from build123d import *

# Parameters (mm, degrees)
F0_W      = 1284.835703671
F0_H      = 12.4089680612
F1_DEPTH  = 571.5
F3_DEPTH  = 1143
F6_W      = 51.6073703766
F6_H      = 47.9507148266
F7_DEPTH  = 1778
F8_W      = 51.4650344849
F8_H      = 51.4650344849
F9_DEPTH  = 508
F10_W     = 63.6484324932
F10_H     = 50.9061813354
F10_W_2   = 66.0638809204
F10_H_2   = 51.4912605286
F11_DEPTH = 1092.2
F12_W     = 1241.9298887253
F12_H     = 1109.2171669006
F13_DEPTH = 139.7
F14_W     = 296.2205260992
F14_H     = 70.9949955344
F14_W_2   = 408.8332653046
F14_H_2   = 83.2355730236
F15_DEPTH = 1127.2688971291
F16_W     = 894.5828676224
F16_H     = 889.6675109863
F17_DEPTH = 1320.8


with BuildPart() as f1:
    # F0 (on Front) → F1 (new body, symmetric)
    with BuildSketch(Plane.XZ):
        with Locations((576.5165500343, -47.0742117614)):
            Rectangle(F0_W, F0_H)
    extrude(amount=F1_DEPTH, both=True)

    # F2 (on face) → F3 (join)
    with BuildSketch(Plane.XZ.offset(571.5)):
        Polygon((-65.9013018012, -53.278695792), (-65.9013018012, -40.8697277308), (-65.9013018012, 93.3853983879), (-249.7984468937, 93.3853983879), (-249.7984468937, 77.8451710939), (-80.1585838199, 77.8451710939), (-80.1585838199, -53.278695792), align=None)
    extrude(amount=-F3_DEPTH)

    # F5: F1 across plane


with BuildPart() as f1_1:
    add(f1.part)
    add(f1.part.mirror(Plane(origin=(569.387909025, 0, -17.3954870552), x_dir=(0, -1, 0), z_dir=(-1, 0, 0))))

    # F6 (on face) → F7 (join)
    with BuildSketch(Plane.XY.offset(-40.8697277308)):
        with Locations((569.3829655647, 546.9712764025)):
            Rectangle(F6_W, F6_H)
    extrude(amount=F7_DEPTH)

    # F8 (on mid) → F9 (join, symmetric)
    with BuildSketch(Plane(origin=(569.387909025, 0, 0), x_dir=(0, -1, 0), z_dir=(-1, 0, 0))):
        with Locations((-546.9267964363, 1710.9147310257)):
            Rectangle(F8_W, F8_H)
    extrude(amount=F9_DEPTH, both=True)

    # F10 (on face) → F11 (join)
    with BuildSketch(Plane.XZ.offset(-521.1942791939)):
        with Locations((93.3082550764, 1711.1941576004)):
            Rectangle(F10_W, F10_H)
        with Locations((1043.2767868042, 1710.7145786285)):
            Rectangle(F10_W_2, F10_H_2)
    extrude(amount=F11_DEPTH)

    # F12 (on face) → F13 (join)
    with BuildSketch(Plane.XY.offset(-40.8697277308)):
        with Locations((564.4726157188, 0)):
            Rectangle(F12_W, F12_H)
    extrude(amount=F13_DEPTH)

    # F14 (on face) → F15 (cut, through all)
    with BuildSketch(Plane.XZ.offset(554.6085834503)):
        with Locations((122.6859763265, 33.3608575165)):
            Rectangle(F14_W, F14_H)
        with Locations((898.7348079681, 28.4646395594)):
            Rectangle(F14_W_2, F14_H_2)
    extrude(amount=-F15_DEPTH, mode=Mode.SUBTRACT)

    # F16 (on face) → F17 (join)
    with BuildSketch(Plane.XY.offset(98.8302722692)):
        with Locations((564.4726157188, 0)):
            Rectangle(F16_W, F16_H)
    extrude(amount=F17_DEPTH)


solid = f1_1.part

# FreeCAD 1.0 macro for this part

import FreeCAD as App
import Part
import Sketcher
from FreeCAD import Vector
Q = App.Units.Quantity

doc = App.newDocument("Part")
body = doc.addObject("PartDesign::Body", "Body")

sketch1 = body.newObject("Sketcher::SketchObject", "Sketch")
sketch1.AttachmentSupport = (doc.getObject("XZ_Plane"), [""])
sketch1.MapMode = "FlatFace"
sketch1.addGeometry([
    Part.LineSegment(Vector(-66, -41, 0), Vector(-66, -53, 0)),
    Part.LineSegment(Vector(-66, -53, 0), Vector(1219, -53, 0)),
    Part.LineSegment(Vector(1219, -53, 0), Vector(1219, -41, 0)),
    Part.LineSegment(Vector(1219, -41, 0), Vector(-66, -41, 0)),
], False)
sketch1.addConstraint([
    Sketcher.Constraint("Coincident", 0, 2, 1, 1),
    Sketcher.Constraint("Coincident", 1, 2, 2, 1),
    Sketcher.Constraint("Coincident", 2, 2, 3, 1),
    Sketcher.Constraint("Coincident", 3, 2, 0, 1),
    Sketcher.Constraint("Vertical", 0),
    Sketcher.Constraint("Horizontal", 1),
    Sketcher.Constraint("Vertical", 2),
    Sketcher.Constraint("Horizontal", 3),
    Sketcher.Constraint("DistanceY", 0, 2, 0, 1, 12.408968),
    Sketcher.Constraint("DistanceX", 0, 2, -1, 1, 65.901302),
    Sketcher.Constraint("DistanceX", -1, 1, 1, 2, 1218.934402),
    Sketcher.Constraint("DistanceY", 0, 2, -1, 1, 53.278696),
])
pad1 = body.newObject("PartDesign::Pad", "Pad")
pad1.Profile = sketch1
pad1.Length = Q("45 in")
pad1.Midplane = True

sketch2 = body.newObject("Sketcher::SketchObject", "Sketch001")
sketch2.AttachmentSupport = (doc.getObject("XZ_Plane"), [""])
sketch2.MapMode = "FlatFace"
sketch2.AttachmentOffset = App.Placement(Vector(0, 0, 22.5 * 25.4), App.Rotation())
sketch2.addGeometry([
    Part.LineSegment(Vector(-66, -53, 0), Vector(-66, 93, 0)),
    Part.LineSegment(Vector(-66, 93, 0), Vector(-250, 93, 0)),
    Part.LineSegment(Vector(-250, 93, 0), Vector(-250, 78, 0)),
    Part.LineSegment(Vector(-250, 78, 0), Vector(-80, 78, 0)),
    Part.LineSegment(Vector(-80, 78, 0), Vector(-80, -53, 0)),
    Part.LineSegment(Vector(-80, -53, 0), Vector(-66, -53, 0)),
], False)
sketch2.addConstraint([
    Sketcher.Constraint("Coincident", 0, 2, 1, 1),
    Sketcher.Constraint("Coincident", 1, 2, 2, 1),
    Sketcher.Constraint("Coincident", 2, 2, 3, 1),
    Sketcher.Constraint("Coincident", 3, 2, 4, 1),
    Sketcher.Constraint("Coincident", 4, 2, 5, 1),
    Sketcher.Constraint("Coincident", 5, 2, 0, 1),
    Sketcher.Constraint("Vertical", 0),
    Sketcher.Constraint("Horizontal", 1),
    Sketcher.Constraint("Vertical", 2),
    Sketcher.Constraint("Horizontal", 3),
    Sketcher.Constraint("Vertical", 4),
    Sketcher.Constraint("Horizontal", 5),
    Sketcher.Constraint("DistanceX", 0, 2, -1, 1, 65.901302),
    Sketcher.Constraint("DistanceY", -1, 1, 0, 2, 93.385398),
    Sketcher.Constraint("DistanceX", 1, 2, 1, 1, 183.897145),
    Sketcher.Constraint("DistanceX", 3, 1, 3, 2, 169.639863),
    Sketcher.Constraint("DistanceY", 0, 1, 0, 2, 146.664094),
    Sketcher.Constraint("DistanceY", 2, 2, 2, 1, 15.540227),
])
pad2 = body.newObject("PartDesign::Pad", "Pad001")
pad2.Profile = sketch2
pad2.Length = Q("45 in")
pad2.Reversed = True
body2 = doc.addObject("PartDesign::Body", "Body001")
doc.recompute()

body2.BaseFeature = body
doc.recompute()

mirroring = doc.addObject("Part::Mirroring", "Mirroring")
mirroring.Source = body
mirroring.Base = Vector(569.387909, 0, -17.395487)
mirroring.Normal = Vector(-1, 0, 0)
body3 = doc.addObject("PartDesign::Body", "Body002")
body3.BaseFeature = mirroring
boolean = body2.newObject("PartDesign::Boolean", "Boolean")
boolean.Type = "Fuse"
boolean.addObjects([body3])
doc.recompute()

sketch3 = body2.newObject("Sketcher::SketchObject", "Sketch002")
sketch3.AttachmentSupport = (doc.getObject("XY_Plane001"), [""])
sketch3.MapMode = "FlatFace"
sketch3.AttachmentOffset = App.Placement(Vector(0, 0, -40.869728), App.Rotation())
sketch3.addGeometry([
    Part.LineSegment(Vector(544, 571, 0), Vector(544, 523, 0)),
    Part.LineSegment(Vector(544, 523, 0), Vector(595, 523, 0)),
    Part.LineSegment(Vector(595, 523, 0), Vector(595, 571, 0)),
    Part.LineSegment(Vector(595, 571, 0), Vector(544, 571, 0)),
], False)
sketch3.addConstraint([
    Sketcher.Constraint("Coincident", 0, 2, 1, 1),
    Sketcher.Constraint("Coincident", 1, 2, 2, 1),
    Sketcher.Constraint("Coincident", 2, 2, 3, 1),
    Sketcher.Constraint("Coincident", 3, 2, 0, 1),
    Sketcher.Constraint("Vertical", 0),
    Sketcher.Constraint("Horizontal", 1),
    Sketcher.Constraint("Vertical", 2),
    Sketcher.Constraint("Horizontal", 3),
    Sketcher.Constraint("DistanceX", 1, 1, 1, 2, 51.60737),
    Sketcher.Constraint("DistanceY", 0, 2, 0, 1, 47.950715),
    Sketcher.Constraint("DistanceX", -1, 1, 0, 2, 543.57928),
    Sketcher.Constraint("DistanceY", -1, 1, 0, 2, 522.995919),
])
pad3 = body2.newObject("PartDesign::Pad", "Pad002")
pad3.Profile = sketch3
pad3.Length = Q("70 in")

sketch4 = body2.newObject("Sketcher::SketchObject", "Sketch003")
sketch4.AttachmentSupport = (doc.getObject("YZ_Plane001"), [""])
sketch4.MapMode = "FlatFace"
sketch4.AttachmentOffset = App.Placement(Vector(0, 0, 569.387909), App.Rotation())
sketch4.addGeometry([
    Part.LineSegment(Vector(573, 1737, 0), Vector(573, 1685, 0)),
    Part.LineSegment(Vector(573, 1685, 0), Vector(521, 1685, 0)),
    Part.LineSegment(Vector(521, 1685, 0), Vector(521, 1737, 0)),
    Part.LineSegment(Vector(521, 1737, 0), Vector(573, 1737, 0)),
], False)
sketch4.addConstraint([
    Sketcher.Constraint("Coincident", 0, 2, 1, 1),
    Sketcher.Constraint("Coincident", 1, 2, 2, 1),
    Sketcher.Constraint("Coincident", 2, 2, 3, 1),
    Sketcher.Constraint("Coincident", 3, 2, 0, 1),
    Sketcher.Constraint("Vertical", 0),
    Sketcher.Constraint("Horizontal", 1),
    Sketcher.Constraint("Vertical", 2),
    Sketcher.Constraint("Horizontal", 3),
    Sketcher.Constraint("Equal", 3, 0),
    Sketcher.Constraint("DistanceX", 1, 2, 1, 1, 51.465034),
    Sketcher.Constraint("DistanceX", -1, 1, 1, 2, 521.194279),
    Sketcher.Constraint("DistanceY", -1, 1, 2, 2, 1736.647248),
])
pad4 = body2.newObject("PartDesign::Pad", "Pad003")
pad4.Profile = sketch4
pad4.Length = Q("40 in")
pad4.Midplane = True

sketch5 = body2.newObject("Sketcher::SketchObject", "Sketch004")
sketch5.AttachmentSupport = (doc.getObject("XZ_Plane001"), [""])
sketch5.MapMode = "FlatFace"
sketch5.AttachmentOffset = App.Placement(Vector(0, 0, -521.194279), App.Rotation())
sketch5.addGeometry([
    Part.LineSegment(Vector(61, 1737, 0), Vector(61, 1686, 0)),
    Part.LineSegment(Vector(61, 1686, 0), Vector(125, 1686, 0)),
    Part.LineSegment(Vector(125, 1686, 0), Vector(125, 1737, 0)),
    Part.LineSegment(Vector(125, 1737, 0), Vector(61, 1737, 0)),
    Part.LineSegment(Vector(1010, 1736, 0), Vector(1010, 1685, 0)),
    Part.LineSegment(Vector(1010, 1685, 0), Vector(1076, 1685, 0)),
    Part.LineSegment(Vector(1076, 1685, 0), Vector(1076, 1736, 0)),
    Part.LineSegment(Vector(1076, 1736, 0), Vector(1010, 1736, 0)),
], False)
sketch5.addConstraint([
    Sketcher.Constraint("Coincident", 0, 2, 1, 1),
    Sketcher.Constraint("Coincident", 1, 2, 2, 1),
    Sketcher.Constraint("Coincident", 2, 2, 3, 1),
    Sketcher.Constraint("Coincident", 3, 2, 0, 1),
    Sketcher.Constraint("Coincident", 4, 2, 5, 1),
    Sketcher.Constraint("Coincident", 5, 2, 6, 1),
    Sketcher.Constraint("Coincident", 6, 2, 7, 1),
    Sketcher.Constraint("Coincident", 7, 2, 4, 1),
    Sketcher.Constraint("Vertical", 0),
    Sketcher.Constraint("Horizontal", 1),
    Sketcher.Constraint("Vertical", 2),
    Sketcher.Constraint("Horizontal", 3),
    Sketcher.Constraint("Vertical", 4),
    Sketcher.Constraint("Horizontal", 5),
    Sketcher.Constraint("Vertical", 6),
    Sketcher.Constraint("Horizontal", 7),
    Sketcher.Constraint("DistanceX", 5, 1, 5, 2, 66.063881),
    Sketcher.Constraint("DistanceY", 0, 2, 0, 1, 50.906181),
    Sketcher.Constraint("DistanceY", 4, 2, 4, 1, 51.491261),
    Sketcher.Constraint("DistanceY", 4, 2, 2, 2, 51.6783),
    Sketcher.Constraint("DistanceX", 1, 1, 1, 2, 63.648432),
    Sketcher.Constraint("DistanceX", -1, 1, 0, 2, 61.484039),
    Sketcher.Constraint("DistanceY", -1, 1, 2, 2, 1736.647248),
    Sketcher.Constraint("DistanceX", 0, 2, 5, 2, 1014.824688),
])
pad5 = body2.newObject("PartDesign::Pad", "Pad004")
pad5.Profile = sketch5
pad5.Length = Q("43 in")

sketch6 = body2.newObject("Sketcher::SketchObject", "Sketch005")
sketch6.AttachmentSupport = (doc.getObject("XY_Plane001"), [""])
sketch6.MapMode = "FlatFace"
sketch6.AttachmentOffset = App.Placement(Vector(0, 0, -40.869728), App.Rotation())
sketch6.addGeometry([
    Part.LineSegment(Vector(-56, 555, 0), Vector(-56, -555, 0)),
    Part.LineSegment(Vector(-56, -555, 0), Vector(1185, -555, 0)),
    Part.LineSegment(Vector(1185, -555, 0), Vector(1185, 555, 0)),
    Part.LineSegment(Vector(1185, 555, 0), Vector(-56, 555, 0)),
], False)
sketch6.addConstraint([
    Sketcher.Constraint("Coincident", 0, 2, 1, 1),
    Sketcher.Constraint("Coincident", 1, 2, 2, 1),
    Sketcher.Constraint("Coincident", 2, 2, 3, 1),
    Sketcher.Constraint("Coincident", 3, 2, 0, 1),
    Sketcher.Constraint("Vertical", 0),
    Sketcher.Constraint("Horizontal", 1),
    Sketcher.Constraint("Vertical", 2),
    Sketcher.Constraint("Horizontal", 3),
    Sketcher.Constraint("DistanceX", 1, 1, 1, 2, 1241.929889),
    Sketcher.Constraint("DistanceY", 0, 2, 0, 1, 1109.217167),
    Sketcher.Constraint("DistanceX", 0, 2, -1, 1, 56.492329),
    Sketcher.Constraint("DistanceY", 0, 2, -1, 1, 554.608583),
])
pad6 = body2.newObject("PartDesign::Pad", "Pad005")
pad6.Profile = sketch6
pad6.Length = Q("5.5 in")

sketch7 = body2.newObject("Sketcher::SketchObject", "Sketch006")
sketch7.AttachmentSupport = (doc.getObject("XZ_Plane001"), [""])
sketch7.MapMode = "FlatFace"
sketch7.AttachmentOffset = App.Placement(Vector(0, 0, 554.608583), App.Rotation())
sketch7.addGeometry([
    Part.LineSegment(Vector(-25, 69, 0), Vector(-25, -2, 0)),
    Part.LineSegment(Vector(-25, -2, 0), Vector(271, -2, 0)),
    Part.LineSegment(Vector(271, -2, 0), Vector(271, 69, 0)),
    Part.LineSegment(Vector(271, 69, 0), Vector(-25, 69, 0)),
    Part.LineSegment(Vector(694, 70, 0), Vector(694, -13, 0)),
    Part.LineSegment(Vector(694, -13, 0), Vector(1103, -13, 0)),
    Part.LineSegment(Vector(1103, -13, 0), Vector(1103, 70, 0)),
    Part.LineSegment(Vector(1103, 70, 0), Vector(694, 70, 0)),
], False)
sketch7.addConstraint([
    Sketcher.Constraint("Coincident", 0, 2, 1, 1),
    Sketcher.Constraint("Coincident", 1, 2, 2, 1),
    Sketcher.Constraint("Coincident", 2, 2, 3, 1),
    Sketcher.Constraint("Coincident", 3, 2, 0, 1),
    Sketcher.Constraint("Coincident", 4, 2, 5, 1),
    Sketcher.Constraint("Coincident", 5, 2, 6, 1),
    Sketcher.Constraint("Coincident", 6, 2, 7, 1),
    Sketcher.Constraint("Coincident", 7, 2, 4, 1),
    Sketcher.Constraint("Vertical", 0),
    Sketcher.Constraint("Horizontal", 1),
    Sketcher.Constraint("Vertical", 2),
    Sketcher.Constraint("Horizontal", 3),
    Sketcher.Constraint("Vertical", 4),
    Sketcher.Constraint("Horizontal", 5),
    Sketcher.Constraint("Vertical", 6),
    Sketcher.Constraint("Horizontal", 7),
    Sketcher.Constraint("DistanceX", 1, 2, 5, 2, 832.355201),
    Sketcher.Constraint("DistanceX", 1, 1, 1, 2, 296.220526),
    Sketcher.Constraint("DistanceX", 5, 1, 5, 2, 408.833265),
    Sketcher.Constraint("DistanceY", 0, 2, 0, 1, 70.994996),
    Sketcher.Constraint("DistanceY", 4, 2, 4, 1, 83.235573),
    Sketcher.Constraint("DistanceY", 0, 2, -1, 1, 2.13664),
    Sketcher.Constraint("DistanceX", -1, 1, 1, 2, 270.796239),
    Sketcher.Constraint("DistanceY", 2, 2, 6, 2, 1.224071),
])
pocket1 = body2.newObject("PartDesign::Pocket", "Pocket")
pocket1.Profile = sketch7
pocket1.Type = "ThroughAll"

sketch8 = body2.newObject("Sketcher::SketchObject", "Sketch007")
sketch8.AttachmentSupport = (doc.getObject("XY_Plane001"), [""])
sketch8.MapMode = "FlatFace"
sketch8.AttachmentOffset = App.Placement(Vector(0, 0, 98.830272), App.Rotation())
sketch8.addGeometry([
    Part.LineSegment(Vector(117, 445, 0), Vector(117, -445, 0)),
    Part.LineSegment(Vector(117, -445, 0), Vector(1012, -445, 0)),
    Part.LineSegment(Vector(1012, -445, 0), Vector(1012, 445, 0)),
    Part.LineSegment(Vector(1012, 445, 0), Vector(117, 445, 0)),
], False)
sketch8.addConstraint([
    Sketcher.Constraint("Coincident", 0, 2, 1, 1),
    Sketcher.Constraint("Coincident", 1, 2, 2, 1),
    Sketcher.Constraint("Coincident", 2, 2, 3, 1),
    Sketcher.Constraint("Coincident", 3, 2, 0, 1),
    Sketcher.Constraint("Vertical", 0),
    Sketcher.Constraint("Horizontal", 1),
    Sketcher.Constraint("Vertical", 2),
    Sketcher.Constraint("Horizontal", 3),
    Sketcher.Constraint("DistanceY", 0, 2, 0, 1, 889.667511),
    Sketcher.Constraint("DistanceX", 1, 1, 1, 2, 894.582868),
    Sketcher.Constraint("DistanceX", -1, 1, 0, 2, 117.181182),
    Sketcher.Constraint("DistanceY", 0, 2, -1, 1, 444.833755),
])
pad7 = body2.newObject("PartDesign::Pad", "Pad006")
pad7.Profile = sketch8
pad7.Length = Q("52 in")
mirroring.Visibility = False

doc.recompute()
